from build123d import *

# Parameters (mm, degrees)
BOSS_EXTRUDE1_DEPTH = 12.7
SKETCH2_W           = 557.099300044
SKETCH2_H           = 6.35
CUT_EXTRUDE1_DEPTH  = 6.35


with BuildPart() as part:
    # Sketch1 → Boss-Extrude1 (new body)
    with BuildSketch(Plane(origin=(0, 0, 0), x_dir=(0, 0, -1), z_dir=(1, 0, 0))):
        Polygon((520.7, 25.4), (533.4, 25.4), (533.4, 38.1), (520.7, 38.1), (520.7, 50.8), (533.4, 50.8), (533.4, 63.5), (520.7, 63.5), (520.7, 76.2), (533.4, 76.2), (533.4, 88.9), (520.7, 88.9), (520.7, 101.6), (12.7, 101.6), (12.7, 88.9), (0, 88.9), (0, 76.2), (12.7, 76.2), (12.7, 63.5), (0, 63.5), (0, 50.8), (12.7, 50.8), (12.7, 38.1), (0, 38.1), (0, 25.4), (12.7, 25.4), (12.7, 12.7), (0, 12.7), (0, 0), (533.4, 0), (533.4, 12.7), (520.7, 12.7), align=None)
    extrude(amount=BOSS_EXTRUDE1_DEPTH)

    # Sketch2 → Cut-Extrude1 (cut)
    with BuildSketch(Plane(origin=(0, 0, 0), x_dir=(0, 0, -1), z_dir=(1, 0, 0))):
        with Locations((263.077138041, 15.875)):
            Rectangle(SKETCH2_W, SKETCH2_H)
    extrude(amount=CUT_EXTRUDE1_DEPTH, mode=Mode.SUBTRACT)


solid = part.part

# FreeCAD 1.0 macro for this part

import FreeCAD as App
import Part
import Sketcher

V = App.Vector
Q = App.Units.Quantity


def add_polygon(sketch, points):
    """Adds a closed chain of lines whose ends are joined by coincident constraints."""
    first, n = sketch.GeometryCount, len(points)
    for a, b in zip(points, points[1:] + points[:1]):
        sketch.addGeometry(Part.LineSegment(App.Vector(*a, 0), App.Vector(*b, 0)), False)
    for i in range(n):
        sketch.addConstraint(Sketcher.Constraint("Coincident", first + i, 2, first + (i + 1) % n, 1))

doc = App.newDocument("Part")
body = doc.addObject("PartDesign::Body", "Body")

# Sketch on YZ plane
sketch1 = doc.addObject("Sketcher::SketchObject", "Sketch")
body.addObject(sketch1)
sketch1.AttachmentSupport = (doc.YZ_Plane, [""])
sketch1.MapMode = "FlatFace"
add_polygon(sketch1, [(25, -521), (25, -533), (38, -533), (38, -521), (51, -521), (51, -533), (64, -533), (64, -521), (76, -521), (76, -533), (89, -533), (89, -521), (102, -521), (102, -13), (89, -13), (89, 0), (76, 0), (76, -13), (64, -13), (64, 0), (51, 0), (51, -13), (38, -13), (38, 0), (25, 0), (25, -13), (13, -13), (13, 0), (0, 0), (0, -533), (13, -533), (13, -521)])  # lines 0-31
sketch1.addConstraint(Sketcher.Constraint("Vertical", 0))
sketch1.addConstraint(Sketcher.Constraint("Horizontal", 1))
sketch1.addConstraint(Sketcher.Constraint("Vertical", 2))
sketch1.addConstraint(Sketcher.Constraint("Horizontal", 3))
sketch1.addConstraint(Sketcher.Constraint("Vertical", 4))
sketch1.addConstraint(Sketcher.Constraint("Horizontal", 5))
sketch1.addConstraint(Sketcher.Constraint("Vertical", 6))
sketch1.addConstraint(Sketcher.Constraint("Horizontal", 7))
sketch1.addConstraint(Sketcher.Constraint("Vertical", 8))
sketch1.addConstraint(Sketcher.Constraint("Horizontal", 9))
sketch1.addConstraint(Sketcher.Constraint("Vertical", 10))
sketch1.addConstraint(Sketcher.Constraint("Horizontal", 11))
sketch1.addConstraint(Sketcher.Constraint("Vertical", 12))
sketch1.addConstraint(Sketcher.Constraint("Horizontal", 13))
sketch1.addConstraint(Sketcher.Constraint("Vertical", 14))
sketch1.addConstraint(Sketcher.Constraint("Horizontal", 15))
sketch1.addConstraint(Sketcher.Constraint("Vertical", 16))
sketch1.addConstraint(Sketcher.Constraint("Horizontal", 17))
sketch1.addConstraint(Sketcher.Constraint("Vertical", 18))
sketch1.addConstraint(Sketcher.Constraint("Horizontal", 19))
sketch1.addConstraint(Sketcher.Constraint("Vertical", 20))
sketch1.addConstraint(Sketcher.Constraint("Horizontal", 21))
sketch1.addConstraint(Sketcher.Constraint("Vertical", 22))
sketch1.addConstraint(Sketcher.Constraint("Horizontal", 23))
sketch1.addConstraint(Sketcher.Constraint("Vertical", 24))
sketch1.addConstraint(Sketcher.Constraint("Horizontal", 25))
sketch1.addConstraint(Sketcher.Constraint("Vertical", 26))
sketch1.addConstraint(Sketcher.Constraint("Horizontal", 27))
sketch1.addConstraint(Sketcher.Constraint("Vertical", 28))
sketch1.addConstraint(Sketcher.Constraint("Horizontal", 29))
sketch1.addConstraint(Sketcher.Constraint("Vertical", 30))
sketch1.addConstraint(Sketcher.Constraint("Horizontal", 31))
sketch1.addConstraint(Sketcher.Constraint("Coincident", 27, 2, -1, 1))
sketch1.addConstraint(Sketcher.Constraint("PointOnObject", 14, 2, -1))
sketch1.addConstraint(Sketcher.Constraint("PointOnObject", 18, 2, -1))
sketch1.addConstraint(Sketcher.Constraint("PointOnObject", 22, 2, -1))
sketch1.addConstraint(Sketcher.Constraint("Horizontal", 1, 2, 4, 2))
sketch1.addConstraint(Sketcher.Constraint("Horizontal", 3, 2, 6, 2))
sketch1.addConstraint(Sketcher.Constraint("Horizontal", 5, 2, 8, 2))
sketch1.addConstraint(Sketcher.Constraint("Horizontal", 7, 2, 10, 2))
sketch1.addConstraint(Sketcher.Constraint("Horizontal", 13, 2, 16, 2))
sketch1.addConstraint(Sketcher.Constraint("Horizontal", 17, 2, 20, 2))
sketch1.addConstraint(Sketcher.Constraint("Horizontal", 21, 2, 24, 2))
sketch1.addConstraint(Sketcher.Constraint("Horizontal", 9, 2, 28, 2))
sketch1.addConstraint(Sketcher.Constraint("Horizontal", 11, 2, 30, 2))
sketch1.addConstraint(Sketcher.Constraint("Vertical", 10, 2, 13, 2))
sketch1.addConstraint(Sketcher.Constraint("Vertical", 8, 2, 15, 2))
sketch1.addConstraint(Sketcher.Constraint("Vertical", 6, 2, 17, 2))
sketch1.addConstraint(Sketcher.Constraint("Vertical", 4, 2, 19, 2))
sketch1.addConstraint(Sketcher.Constraint("Vertical", 2, 2, 21, 2))
sketch1.addConstraint(Sketcher.Constraint("Vertical", 0, 2, 23, 2))
sketch1.addConstraint(Sketcher.Constraint("Vertical", 26, 2, 29, 2))
sketch1.addConstraint(Sketcher.Constraint("Equal", 1, 3))
sketch1.addConstraint(Sketcher.Constraint("Equal", 3, 5))
sketch1.addConstraint(Sketcher.Constraint("Equal", 5, 7))
sketch1.addConstraint(Sketcher.Constraint("Equal", 7, 9))
sketch1.addConstraint(Sketcher.Constraint("Equal", 9, 11))
sketch1.addConstraint(Sketcher.Constraint("Equal", 23, 25))
sketch1.addConstraint(Sketcher.Constraint("Equal", 25, 27))
sketch1.addConstraint(Sketcher.Constraint("Equal", 31, 0))
sketch1.addConstraint(Sketcher.Constraint("Equal", 10, 14))
sketch1.addConstraint(Sketcher.Constraint("DistanceY", 12, 1, 12, 2, Q("20 in")))
sketch1.addConstraint(Sketcher.Constraint("DistanceY", 28, 2, 28, 1, Q("21 in")))
pad1 = doc.addObject("PartDesign::Pad", "Pad")
body.addObject(pad1)
pad1.Profile = sketch1
pad1.Length = Q("0.5 in")

# Sketch on YZ plane
sketch2 = doc.addObject("Sketcher::SketchObject", "Sketch001")
body.addObject(sketch2)
sketch2.AttachmentSupport = (doc.YZ_Plane, [""])
sketch2.MapMode = "FlatFace"
add_polygon(sketch2, [(19, 15), (13, 15), (13, -542), (19, -542)])  # lines 0-3
sketch2.addConstraint(Sketcher.Constraint("Horizontal", 0))
sketch2.addConstraint(Sketcher.Constraint("Vertical", 1))
sketch2.addConstraint(Sketcher.Constraint("Horizontal", 2))
sketch2.addConstraint(Sketcher.Constraint("Vertical", 3))
sketch2.addConstraint(Sketcher.Constraint("DistanceX", 0, 2, 0, 1, Q("0.25 in")))
sketch2.addConstraint(Sketcher.Constraint("DistanceX", -1, 1, 0, 2, Q("0.5 in")))
sketch2.addConstraint(Sketcher.Constraint("DistanceY", 1, 2, 1, 1, Q("557.0993 mm")))
sketch2.addConstraint(Sketcher.Constraint("DistanceY", -1, 1, 0, 2, Q("15.472512 mm")))
pocket1 = doc.addObject("PartDesign::Pocket", "Pocket")
body.addObject(pocket1)
pocket1.Profile = sketch2
pocket1.Length = Q("0.25 in")
pocket1.Reversed = True

doc.recompute()
